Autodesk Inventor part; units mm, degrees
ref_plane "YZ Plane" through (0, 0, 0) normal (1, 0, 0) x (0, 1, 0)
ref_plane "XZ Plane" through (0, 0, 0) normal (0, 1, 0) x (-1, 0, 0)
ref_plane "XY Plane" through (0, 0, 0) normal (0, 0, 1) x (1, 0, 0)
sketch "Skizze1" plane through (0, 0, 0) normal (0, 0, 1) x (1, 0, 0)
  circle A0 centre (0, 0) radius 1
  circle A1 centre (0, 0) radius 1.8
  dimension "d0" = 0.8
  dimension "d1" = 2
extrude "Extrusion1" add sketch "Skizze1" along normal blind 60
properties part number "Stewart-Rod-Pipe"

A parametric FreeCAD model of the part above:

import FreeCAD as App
import Part
import Sketcher

doc = App.newDocument("Part")
params = doc.addObject("Spreadsheet::Sheet", "Params")
for row, (alias, value) in enumerate([
    ("sketch1_diameter", "2 mm"),
    ("sketch1_diameter2", "3.6 mm"),
    ("pad1_length", "60 mm"),
], start=1):
    params.set(f"A{row}", alias)
    params.set(f"B{row}", "=" + value)
    params.setAlias(f"B{row}", alias)

body = doc.addObject("PartDesign::Body", "Body")

# Sketch on XY plane
sketch1 = body.newObject("Sketcher::SketchObject", "Sketch")
sketch1.AttachmentSupport = (doc.getObject("XY_Plane"), [""])
sketch1.MapMode = "FlatFace"
sketch1.addGeometry([
    Part.Circle(App.Vector(0, 0, 0), App.Vector(0, 0, 1), 1.8),
    Part.Circle(App.Vector(0, 0, 0), App.Vector(0, 0, 1), 1),
], False)
sketch1.addConstraint([
    Sketcher.Constraint("Coincident", 0, 3, -1, 1),
    Sketcher.Constraint("Coincident", 1, 3, -1, 1),
    Sketcher.Constraint("Diameter", 1, 2.0),
    Sketcher.Constraint("Diameter", 0, 3.6),
])
sketch1.setExpression("Constraints[2]", "Params.sketch1_diameter")
sketch1.setExpression("Constraints[3]", "Params.sketch1_diameter2")
pad1 = body.newObject("PartDesign::Pad", "Pad")
pad1.Profile = sketch1
pad1.setExpression("Length", "Params.pad1_length")

doc.recompute()
